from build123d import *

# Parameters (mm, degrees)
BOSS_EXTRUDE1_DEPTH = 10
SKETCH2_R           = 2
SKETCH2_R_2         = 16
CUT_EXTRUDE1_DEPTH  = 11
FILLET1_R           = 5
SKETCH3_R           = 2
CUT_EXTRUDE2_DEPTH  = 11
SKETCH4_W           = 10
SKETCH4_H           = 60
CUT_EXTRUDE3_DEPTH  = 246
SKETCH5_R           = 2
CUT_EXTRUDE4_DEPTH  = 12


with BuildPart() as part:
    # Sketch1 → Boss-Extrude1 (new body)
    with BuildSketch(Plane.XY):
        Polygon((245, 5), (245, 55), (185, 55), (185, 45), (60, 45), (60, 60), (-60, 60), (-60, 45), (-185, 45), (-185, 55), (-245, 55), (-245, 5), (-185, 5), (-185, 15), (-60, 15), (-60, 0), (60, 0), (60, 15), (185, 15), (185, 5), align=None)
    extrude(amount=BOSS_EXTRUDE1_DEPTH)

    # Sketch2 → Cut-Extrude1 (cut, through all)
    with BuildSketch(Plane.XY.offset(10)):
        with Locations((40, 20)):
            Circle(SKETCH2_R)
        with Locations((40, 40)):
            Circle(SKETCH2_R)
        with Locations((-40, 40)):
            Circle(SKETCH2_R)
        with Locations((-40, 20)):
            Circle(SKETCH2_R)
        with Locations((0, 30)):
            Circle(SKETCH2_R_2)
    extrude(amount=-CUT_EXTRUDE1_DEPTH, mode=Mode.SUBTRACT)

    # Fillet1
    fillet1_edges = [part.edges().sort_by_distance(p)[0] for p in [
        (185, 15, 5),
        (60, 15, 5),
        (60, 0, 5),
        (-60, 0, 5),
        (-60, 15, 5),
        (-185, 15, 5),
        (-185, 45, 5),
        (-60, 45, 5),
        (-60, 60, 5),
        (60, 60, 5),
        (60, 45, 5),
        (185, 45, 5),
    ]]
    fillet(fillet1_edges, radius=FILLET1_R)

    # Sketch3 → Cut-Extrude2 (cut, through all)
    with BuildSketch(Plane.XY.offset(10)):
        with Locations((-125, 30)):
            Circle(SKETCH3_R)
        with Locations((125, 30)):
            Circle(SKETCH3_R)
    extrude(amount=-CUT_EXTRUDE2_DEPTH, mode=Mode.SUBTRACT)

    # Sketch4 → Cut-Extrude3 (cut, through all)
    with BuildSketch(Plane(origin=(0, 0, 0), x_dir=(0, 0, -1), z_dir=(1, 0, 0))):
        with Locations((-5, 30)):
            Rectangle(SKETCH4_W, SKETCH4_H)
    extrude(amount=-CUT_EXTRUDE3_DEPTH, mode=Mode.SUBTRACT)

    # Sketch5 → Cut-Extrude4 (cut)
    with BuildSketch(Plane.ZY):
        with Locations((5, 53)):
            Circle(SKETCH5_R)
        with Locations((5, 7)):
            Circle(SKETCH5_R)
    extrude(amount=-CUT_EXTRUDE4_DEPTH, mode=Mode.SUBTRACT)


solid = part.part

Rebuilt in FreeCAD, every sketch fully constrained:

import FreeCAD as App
import Part
import Sketcher
from FreeCAD import Vector


def edges_at(feature, points):
    """Names of the edges that pass closest to the given points."""
    edges = feature.Shape.Edges
    near = lambda p: min(range(len(edges)), key=lambda i: edges[i].distToShape(Part.Vertex(*p))[0])
    return sorted({f"Edge{near(p) + 1}" for p in points})


def add_polygon(sketch, points):
    """Adds a closed chain of lines whose ends are joined by coincident constraints."""
    first, n = sketch.GeometryCount, len(points)
    for a, b in zip(points, points[1:] + points[:1]):
        sketch.addGeometry(Part.LineSegment(App.Vector(*a, 0), App.Vector(*b, 0)), False)
    for i in range(n):
        sketch.addConstraint(Sketcher.Constraint("Coincident", first + i, 2, first + (i + 1) % n, 1))

doc = App.newDocument("Part")
params = doc.addObject("Spreadsheet::Sheet", "Params")
for row, (alias, value) in enumerate([
    ("sketch1_width", "60 mm"),
    ("sketch1_width2", "125 mm"),
    ("sketch1_width3", "120 mm"),
    ("sketch1_height", "50 mm"),
    ("sketch1_height2", "10 mm"),
    ("pad1_length", "10 mm"),
    ("sketch2_diameter", "4 mm"),
    ("sketch2_diameter2", "32 mm"),
    ("fillet_radius", "5 mm"),
    ("sketch3_diameter", "4 mm"),
    ("sketch4_width", "60 mm"),
    ("sketch4_height", "10 mm"),
    ("sketch5_diameter", "4 mm"),
    ("pocket4_length", "12 mm"),
], start=1):
    params.set(f"A{row}", alias)
    params.set(f"B{row}", "=" + value)
    params.setAlias(f"B{row}", alias)

body = doc.addObject("PartDesign::Body", "Body")

# Sketch on XY plane
sketch1 = body.newObject("Sketcher::SketchObject", "Sketch")
sketch1.AttachmentSupport = (doc.getObject("XY_Plane"), [""])
sketch1.MapMode = "FlatFace"
add_polygon(sketch1, [(245, 5), (245, 55), (185, 55), (185, 45), (60, 45), (60, 60), (-60, 60), (-60, 45), (-185, 45), (-185, 55), (-245, 55), (-245, 5), (-185, 5), (-185, 15), (-60, 15), (-60, 0), (60, 0), (60, 15), (185, 15), (185, 5)])  # lines 0-19
sketch1.addConstraint([
    Sketcher.Constraint("Vertical", 0),
    Sketcher.Constraint("Horizontal", 1),
    Sketcher.Constraint("Vertical", 2),
    Sketcher.Constraint("Horizontal", 3),
    Sketcher.Constraint("Vertical", 4),
    Sketcher.Constraint("Horizontal", 5),
    Sketcher.Constraint("Vertical", 6),
    Sketcher.Constraint("Horizontal", 7),
    Sketcher.Constraint("Vertical", 8),
    Sketcher.Constraint("Horizontal", 9),
    Sketcher.Constraint("Vertical", 10),
    Sketcher.Constraint("Horizontal", 11),
    Sketcher.Constraint("Vertical", 12),
    Sketcher.Constraint("Horizontal", 13),
    Sketcher.Constraint("Vertical", 14),
    Sketcher.Constraint("Horizontal", 15),
    Sketcher.Constraint("Vertical", 16),
    Sketcher.Constraint("Horizontal", 17),
    Sketcher.Constraint("Vertical", 18),
    Sketcher.Constraint("Horizontal", 19),
    Sketcher.Constraint("Symmetric", 14, 2, 15, 2, -1, 1),
    Sketcher.Constraint("Symmetric", 3, 2, 6, 2, -2),
    Sketcher.Constraint("Symmetric", 1, 2, 8, 2, -2),
    Sketcher.Constraint("Symmetric", 12, 2, 17, 2, -2),
    Sketcher.Constraint("Symmetric", 10, 2, 19, 2, -2),
    Sketcher.Constraint("Vertical", 8, 2, 11, 2),
    Sketcher.Constraint("Vertical", 6, 2, 13, 2),
    Sketcher.Constraint("Equal", 8, 12),
    Sketcher.Constraint("Equal", 6, 14),
    Sketcher.Constraint("DistanceX", 1, 2, 1, 1, 60.0),
    Sketcher.Constraint("DistanceX", 3, 2, 3, 1, 125.0),
    Sketcher.Constraint("DistanceX", 5, 2, 5, 1, 120.0),
    Sketcher.Constraint("DistanceY", 0, 1, 0, 2, 50.0),
    Sketcher.Constraint("DistanceY", 2, 2, 2, 1, 10.0),
    Sketcher.Constraint("DistanceY", 4, 1, 4, 2, 15.0),
])
sketch1.setExpression("Constraints[49]", "Params.sketch1_width")
sketch1.setExpression("Constraints[50]", "Params.sketch1_width2")
sketch1.setExpression("Constraints[51]", "Params.sketch1_width3")
sketch1.setExpression("Constraints[52]", "Params.sketch1_height")
sketch1.setExpression("Constraints[53]", "Params.sketch1_height2")
pad1 = body.newObject("PartDesign::Pad", "Pad")
pad1.Profile = sketch1
pad1.setExpression("Length", "Params.pad1_length")

# Sketch on XY plane
sketch2 = body.newObject("Sketcher::SketchObject", "Sketch001")
sketch2.AttachmentSupport = (doc.getObject("XY_Plane"), [""])
sketch2.MapMode = "FlatFace"
sketch2.AttachmentOffset = App.Placement(Vector(0, 0, 10), App.Rotation())
sketch2.addGeometry([
    Part.Circle(Vector(40, 20, 0), Vector(0, 0, 1), 2),  # 0
    Part.Circle(Vector(40, 40, 0), Vector(0, 0, 1), 2),  # 1
    Part.Circle(Vector(-40, 40, 0), Vector(0, 0, 1), 2),  # 2
    Part.Circle(Vector(-40, 20, 0), Vector(0, 0, 1), 2),  # 3
    Part.Circle(Vector(0, 30, 0), Vector(0, 0, 1), 16),  # 4
], False)
sketch2.addConstraint([
    Sketcher.Constraint("Equal", 0, 1),
    Sketcher.Constraint("Equal", 1, 2),
    Sketcher.Constraint("Equal", 2, 3),
    Sketcher.Constraint("Symmetric", 1, 3, 2, 3, -2),
    Sketcher.Constraint("Symmetric", 0, 3, 3, 3, -2),
    Sketcher.Constraint("PointOnObject", 4, 3, -2),
    Sketcher.Constraint("Vertical", 0, 3, 1, 3),
    Sketcher.Constraint("Diameter", 0, 4.0),
    Sketcher.Constraint("Diameter", 4, 32.0),
    Sketcher.Constraint("DistanceX", -1, 1, 0, 3, 40.0),
    Sketcher.Constraint("DistanceY", -1, 1, 0, 3, 20.0),
    Sketcher.Constraint("DistanceY", -1, 1, 1, 3, 40.0),
    Sketcher.Constraint("DistanceY", -1, 1, 4, 3, 30.0),
])
sketch2.setExpression("Constraints[7]", "Params.sketch2_diameter")
sketch2.setExpression("Constraints[8]", "Params.sketch2_diameter2")
pocket1 = body.newObject("PartDesign::Pocket", "Pocket")
pocket1.Profile = sketch2
pocket1.Type = "ThroughAll"
doc.recompute()

fillet = body.newObject("PartDesign::Fillet", "Fillet")
fillet.Base = (pocket1, edges_at(pocket1, [
    (185, 15, 5),
    (60, 15, 5),
    (60, 0, 5),
    (-60, 0, 5),
    (-60, 15, 5),
    (-185, 15, 5),
    (-185, 45, 5),
    (-60, 45, 5),
    (-60, 60, 5),
    (60, 60, 5),
    (60, 45, 5),
    (185, 45, 5),
]))
fillet.setExpression("Radius", "Params.fillet_radius")

# Sketch on XY plane
sketch3 = body.newObject("Sketcher::SketchObject", "Sketch002")
sketch3.AttachmentSupport = (doc.getObject("XY_Plane"), [""])
sketch3.MapMode = "FlatFace"
sketch3.AttachmentOffset = App.Placement(Vector(0, 0, 10), App.Rotation())
sketch3.addGeometry([
    Part.Circle(Vector(-125, 30, 0), Vector(0, 0, 1), 2),
    Part.Circle(Vector(125, 30, 0), Vector(0, 0, 1), 2),
], False)
sketch3.addConstraint([
    Sketcher.Constraint("Equal", 0, 1),
    Sketcher.Constraint("Symmetric", 0, 3, 1, 3, -2),
    Sketcher.Constraint("Diameter", 0, 4.0),
    Sketcher.Constraint("DistanceX", 0, 3, -1, 1, 125.0),
    Sketcher.Constraint("DistanceY", -1, 1, 0, 3, 30.0),
])
sketch3.setExpression("Constraints[2]", "Params.sketch3_diameter")
pocket2 = body.newObject("PartDesign::Pocket", "Pocket001")
pocket2.Profile = sketch3
pocket2.Type = "ThroughAll"

# Sketch on YZ plane
sketch4 = body.newObject("Sketcher::SketchObject", "Sketch003")
sketch4.AttachmentSupport = (doc.getObject("YZ_Plane"), [""])
sketch4.MapMode = "FlatFace"
add_polygon(sketch4, [(60, 10), (0, 10), (0, 0), (60, 0)])  # lines 0-3
sketch4.addConstraint([
    Sketcher.Constraint("Horizontal", 0),
    Sketcher.Constraint("Vertical", 1),
    Sketcher.Constraint("Horizontal", 2),
    Sketcher.Constraint("Vertical", 3),
    Sketcher.Constraint("Coincident", 1, 2, -1, 1),
    Sketcher.Constraint("DistanceX", 0, 2, 0, 1, 60.0),
    Sketcher.Constraint("DistanceY", 1, 2, 1, 1, 10.0),
])
sketch4.setExpression("Constraints[9]", "Params.sketch4_width")
sketch4.setExpression("Constraints[10]", "Params.sketch4_height")
pocket3 = body.newObject("PartDesign::Pocket", "Pocket002")
pocket3.Profile = sketch4
pocket3.Type = "ThroughAll"

# Sketch on YZ plane
sketch5 = body.newObject("Sketcher::SketchObject", "Sketch004")
sketch5.AttachmentSupport = (doc.getObject("YZ_Plane"), [""])
sketch5.MapMode = "FlatFace"
sketch5.addGeometry([
    Part.Circle(Vector(53, 5, 0), Vector(0, 0, 1), 2),
    Part.Circle(Vector(7, 5, 0), Vector(0, 0, 1), 2),
], False)
sketch5.addConstraint([
    Sketcher.Constraint("Equal", 0, 1),
    Sketcher.Constraint("Horizontal", 0, 3, 1, 3),
    Sketcher.Constraint("Diameter", 0, 4.0),
    Sketcher.Constraint("DistanceX", -1, 1, 0, 3, 53.0),
    Sketcher.Constraint("DistanceY", -1, 1, 0, 3, 5.0),
    Sketcher.Constraint("DistanceX", -1, 1, 1, 3, 7.0),
])
sketch5.setExpression("Constraints[2]", "Params.sketch5_diameter")
pocket4 = body.newObject("PartDesign::Pocket", "Pocket003")
pocket4.Profile = sketch5
pocket4.setExpression("Length", "Params.pocket4_length")
pocket4.Reversed = True

doc.recompute()
